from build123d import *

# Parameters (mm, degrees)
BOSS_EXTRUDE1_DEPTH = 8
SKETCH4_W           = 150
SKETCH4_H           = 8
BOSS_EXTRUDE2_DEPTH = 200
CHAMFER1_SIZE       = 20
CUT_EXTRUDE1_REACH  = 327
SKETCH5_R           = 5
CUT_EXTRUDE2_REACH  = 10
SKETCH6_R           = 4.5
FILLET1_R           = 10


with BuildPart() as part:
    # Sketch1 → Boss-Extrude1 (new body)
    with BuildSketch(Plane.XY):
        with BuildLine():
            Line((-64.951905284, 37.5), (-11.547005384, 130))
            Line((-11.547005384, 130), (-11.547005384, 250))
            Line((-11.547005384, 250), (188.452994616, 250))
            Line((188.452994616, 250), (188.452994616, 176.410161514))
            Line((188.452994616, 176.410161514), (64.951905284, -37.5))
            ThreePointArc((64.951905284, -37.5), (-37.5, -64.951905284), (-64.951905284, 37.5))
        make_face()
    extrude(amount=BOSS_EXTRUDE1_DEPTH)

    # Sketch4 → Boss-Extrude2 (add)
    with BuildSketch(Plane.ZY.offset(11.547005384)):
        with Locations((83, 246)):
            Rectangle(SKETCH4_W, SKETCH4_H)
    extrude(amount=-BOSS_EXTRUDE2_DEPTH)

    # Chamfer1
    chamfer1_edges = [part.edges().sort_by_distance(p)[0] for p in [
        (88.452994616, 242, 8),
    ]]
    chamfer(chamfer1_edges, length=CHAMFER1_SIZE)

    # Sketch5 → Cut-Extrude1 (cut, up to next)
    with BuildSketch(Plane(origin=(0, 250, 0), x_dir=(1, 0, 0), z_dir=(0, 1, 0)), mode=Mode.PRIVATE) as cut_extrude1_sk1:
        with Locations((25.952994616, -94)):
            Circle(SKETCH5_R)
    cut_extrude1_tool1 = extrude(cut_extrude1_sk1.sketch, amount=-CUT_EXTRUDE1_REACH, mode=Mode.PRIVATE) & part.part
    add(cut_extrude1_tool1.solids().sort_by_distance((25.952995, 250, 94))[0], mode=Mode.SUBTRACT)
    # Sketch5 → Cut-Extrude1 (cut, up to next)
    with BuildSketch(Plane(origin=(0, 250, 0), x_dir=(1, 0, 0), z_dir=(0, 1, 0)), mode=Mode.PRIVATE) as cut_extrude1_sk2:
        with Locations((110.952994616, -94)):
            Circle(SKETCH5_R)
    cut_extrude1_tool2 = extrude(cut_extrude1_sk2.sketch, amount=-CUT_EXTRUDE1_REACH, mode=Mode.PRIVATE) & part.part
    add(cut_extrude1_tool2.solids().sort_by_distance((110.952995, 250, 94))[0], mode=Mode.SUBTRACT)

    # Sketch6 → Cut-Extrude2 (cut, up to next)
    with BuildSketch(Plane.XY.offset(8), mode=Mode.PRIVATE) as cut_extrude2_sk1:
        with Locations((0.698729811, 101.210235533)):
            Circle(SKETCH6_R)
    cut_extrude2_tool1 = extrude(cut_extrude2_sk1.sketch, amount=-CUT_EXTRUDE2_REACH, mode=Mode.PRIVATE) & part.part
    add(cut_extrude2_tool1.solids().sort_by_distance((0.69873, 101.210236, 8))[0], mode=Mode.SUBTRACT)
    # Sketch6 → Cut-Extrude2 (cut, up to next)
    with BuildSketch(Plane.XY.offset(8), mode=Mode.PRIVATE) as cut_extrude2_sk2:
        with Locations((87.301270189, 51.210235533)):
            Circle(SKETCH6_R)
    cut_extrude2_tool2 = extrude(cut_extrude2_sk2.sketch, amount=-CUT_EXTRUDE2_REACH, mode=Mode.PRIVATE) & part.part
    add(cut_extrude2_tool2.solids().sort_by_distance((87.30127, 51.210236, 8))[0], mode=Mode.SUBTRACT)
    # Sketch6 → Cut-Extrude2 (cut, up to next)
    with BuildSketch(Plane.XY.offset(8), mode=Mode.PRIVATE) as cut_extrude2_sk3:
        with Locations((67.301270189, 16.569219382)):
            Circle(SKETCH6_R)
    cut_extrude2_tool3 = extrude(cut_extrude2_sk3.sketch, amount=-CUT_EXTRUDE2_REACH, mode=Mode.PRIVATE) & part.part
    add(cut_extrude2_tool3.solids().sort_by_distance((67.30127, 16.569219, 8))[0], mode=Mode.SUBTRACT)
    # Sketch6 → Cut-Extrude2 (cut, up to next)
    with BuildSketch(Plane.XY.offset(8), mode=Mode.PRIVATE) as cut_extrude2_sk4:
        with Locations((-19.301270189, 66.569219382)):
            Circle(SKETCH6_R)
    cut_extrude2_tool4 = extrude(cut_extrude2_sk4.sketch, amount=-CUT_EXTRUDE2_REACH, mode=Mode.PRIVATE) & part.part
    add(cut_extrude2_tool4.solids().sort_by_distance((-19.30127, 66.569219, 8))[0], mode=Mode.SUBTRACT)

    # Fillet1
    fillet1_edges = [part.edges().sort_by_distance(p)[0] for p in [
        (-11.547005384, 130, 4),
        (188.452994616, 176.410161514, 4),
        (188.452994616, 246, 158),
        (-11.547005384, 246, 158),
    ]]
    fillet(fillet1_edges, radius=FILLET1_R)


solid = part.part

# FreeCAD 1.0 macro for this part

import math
import FreeCAD as App
import Part
import Sketcher
from FreeCAD import Vector
Q = App.Units.Quantity


def edges_at(feature, points):
    """Names of the edges that pass closest to the given points."""
    edges = feature.Shape.Edges
    near = lambda p: min(range(len(edges)), key=lambda i: edges[i].distToShape(Part.Vertex(*p))[0])
    return sorted({f"Edge{near(p) + 1}" for p in points})


def add_polygon(sketch, points):
    """Adds a closed chain of lines whose ends are joined by coincident constraints."""
    first, n = sketch.GeometryCount, len(points)
    for a, b in zip(points, points[1:] + points[:1]):
        sketch.addGeometry(Part.LineSegment(App.Vector(*a, 0), App.Vector(*b, 0)), False)
    for i in range(n):
        sketch.addConstraint(Sketcher.Constraint("Coincident", first + i, 2, first + (i + 1) % n, 1))

doc = App.newDocument("Part")
body = doc.addObject("PartDesign::Body", "Body")

# Sketch on XY plane
sketch1 = doc.addObject("Sketcher::SketchObject", "Sketch")
body.addObject(sketch1)
sketch1.AttachmentSupport = (doc.XY_Plane, [""])
sketch1.MapMode = "FlatFace"
sketch1.addGeometry(Part.LineSegment(Vector(-12, 130, 0), Vector(-65, 38, 0)), False)
sketch1.addGeometry(Part.ArcOfCircle(Part.Circle(Vector(0, 0, 0), Vector(0, 0, 1), 75), math.radians(150), math.radians(330)), False)
sketch1.addGeometry(Part.LineSegment(Vector(65, -38, 0), Vector(188, 176, 0)), False)
sketch1.addGeometry(Part.LineSegment(Vector(188, 176, 0), Vector(188, 250, 0)), False)
sketch1.addGeometry(Part.LineSegment(Vector(188, 250, 0), Vector(-12, 250, 0)), False)
sketch1.addGeometry(Part.LineSegment(Vector(-12, 250, 0), Vector(-12, 130, 0)), False)
sketch1.addConstraint(Sketcher.Constraint("Tangent", 0, 2, 1, 1))
sketch1.addConstraint(Sketcher.Constraint("Tangent", 1, 2, 2, 1))
sketch1.addConstraint(Sketcher.Constraint("Coincident", 2, 2, 3, 1))
sketch1.addConstraint(Sketcher.Constraint("Coincident", 3, 2, 4, 1))
sketch1.addConstraint(Sketcher.Constraint("Coincident", 4, 2, 5, 1))
sketch1.addConstraint(Sketcher.Constraint("Coincident", 5, 2, 0, 1))
sketch1.addConstraint(Sketcher.Constraint("Vertical", 3))
sketch1.addConstraint(Sketcher.Constraint("Horizontal", 4))
sketch1.addConstraint(Sketcher.Constraint("Vertical", 5))
sketch1.addConstraint(Sketcher.Constraint("Coincident", 1, 3, -1, 1))
sketch1.addConstraint(Sketcher.Constraint("Parallel", 0, 2))
sketch1.addConstraint(Sketcher.Constraint("Radius", 1, Q("75 mm")))
sketch1.addConstraint(Sketcher.Constraint("DistanceX", 4, 2, 4, 1, Q("200 mm")))
sketch1.addConstraint(Sketcher.Constraint("DistanceY", 5, 2, 5, 1, Q("120 mm")))
sketch1.addConstraint(Sketcher.Constraint("Angle", 0, Q("-120 deg")))
sketch1.addConstraint(Sketcher.Constraint("DistanceY", -1, 1, 3, 2, Q("250 mm")))
pad1 = doc.addObject("PartDesign::Pad", "Pad")
body.addObject(pad1)
pad1.Profile = sketch1
pad1.Length = 8

# Sketch on YZ plane
sketch2 = doc.addObject("Sketcher::SketchObject", "Sketch001")
body.addObject(sketch2)
sketch2.AttachmentSupport = (doc.YZ_Plane, [""])
sketch2.MapMode = "FlatFace"
sketch2.AttachmentOffset = App.Placement(Vector(0, 0, -11.547005), App.Rotation())
add_polygon(sketch2, [(250, 8), (242, 8), (242, 158), (250, 158)])  # lines 0-3
sketch2.addConstraint(Sketcher.Constraint("Horizontal", 0))
sketch2.addConstraint(Sketcher.Constraint("Vertical", 1))
sketch2.addConstraint(Sketcher.Constraint("Horizontal", 2))
sketch2.addConstraint(Sketcher.Constraint("Vertical", 3))
sketch2.addConstraint(Sketcher.Constraint("DistanceX", 0, 2, 0, 1, Q("8 mm")))
sketch2.addConstraint(Sketcher.Constraint("DistanceY", 1, 1, 1, 2, Q("150 mm")))
sketch2.addConstraint(Sketcher.Constraint("DistanceX", -1, 1, 0, 2, Q("242 mm")))
sketch2.addConstraint(Sketcher.Constraint("DistanceY", -1, 1, 0, 2, Q("8 mm")))
pad2 = doc.addObject("PartDesign::Pad", "Pad001")
body.addObject(pad2)
pad2.Profile = sketch2
pad2.Length = 200
doc.recompute()

chamfer = doc.addObject("PartDesign::Chamfer", "Chamfer")
body.addObject(chamfer)
chamfer.Base = (pad2, edges_at(pad2, [(88.453, 242, 8)]))
chamfer.Size = 20

# Sketch on XZ plane
sketch3 = doc.addObject("Sketcher::SketchObject", "Sketch002")
body.addObject(sketch3)
sketch3.AttachmentSupport = (doc.XZ_Plane, [""])
sketch3.MapMode = "FlatFace"
sketch3.AttachmentOffset = App.Placement(Vector(0, 0, -250), App.Rotation())
sketch3.addGeometry(Part.Circle(Vector(26, 94, 0), Vector(0, 0, 1), 5), False)
sketch3.addConstraint(Sketcher.Constraint("Diameter", 0, Q("10 mm")))
sketch3.addConstraint(Sketcher.Constraint("DistanceY", -1, 1, 0, 3, Q("94 mm")))
sketch3.addConstraint(Sketcher.Constraint("DistanceX", -1, 1, 0, 3, Q("25.952995 mm")))
pocket1 = doc.addObject("PartDesign::Pocket", "Pocket")
body.addObject(pocket1)
pocket1.Profile = sketch3
pocket1.Type = "UpToFirst"
pocket1.Reversed = True

# Sketch on XZ plane
sketch4 = doc.addObject("Sketcher::SketchObject", "Sketch003")
body.addObject(sketch4)
sketch4.AttachmentSupport = (doc.XZ_Plane, [""])
sketch4.MapMode = "FlatFace"
sketch4.AttachmentOffset = App.Placement(Vector(0, 0, -250), App.Rotation())
sketch4.addGeometry(Part.Circle(Vector(111, 94, 0), Vector(0, 0, 1), 5), False)
sketch4.addConstraint(Sketcher.Constraint("Diameter", 0, Q("10 mm")))
sketch4.addConstraint(Sketcher.Constraint("DistanceY", -1, 1, 0, 3, Q("94 mm")))
sketch4.addConstraint(Sketcher.Constraint("DistanceX", -1, 1, 0, 3, Q("110.952995 mm")))
pocket2 = doc.addObject("PartDesign::Pocket", "Pocket001")
body.addObject(pocket2)
pocket2.Profile = sketch4
pocket2.Type = "UpToFirst"
pocket2.Reversed = True

# Sketch on XY plane
sketch5 = doc.addObject("Sketcher::SketchObject", "Sketch004")
body.addObject(sketch5)
sketch5.AttachmentSupport = (doc.XY_Plane, [""])
sketch5.MapMode = "FlatFace"
sketch5.AttachmentOffset = App.Placement(Vector(0, 0, 8), App.Rotation())
sketch5.addGeometry(Part.Circle(Vector(0.7, 101.2, 0), Vector(0, 0, 1), 4.5), False)
sketch5.addConstraint(Sketcher.Constraint("Diameter", 0, Q("9 mm")))
sketch5.addConstraint(Sketcher.Constraint("DistanceX", -1, 1, 0, 3, Q("0.69873 mm")))
sketch5.addConstraint(Sketcher.Constraint("DistanceY", -1, 1, 0, 3, Q("101.210236 mm")))
pocket3 = doc.addObject("PartDesign::Pocket", "Pocket002")
body.addObject(pocket3)
pocket3.Profile = sketch5
pocket3.Type = "UpToFirst"

# Sketch on XY plane
sketch6 = doc.addObject("Sketcher::SketchObject", "Sketch005")
body.addObject(sketch6)
sketch6.AttachmentSupport = (doc.XY_Plane, [""])
sketch6.MapMode = "FlatFace"
sketch6.AttachmentOffset = App.Placement(Vector(0, 0, 8), App.Rotation())
sketch6.addGeometry(Part.Circle(Vector(87.3, 51.2, 0), Vector(0, 0, 1), 4.5), False)
sketch6.addConstraint(Sketcher.Constraint("Diameter", 0, Q("9 mm")))
sketch6.addConstraint(Sketcher.Constraint("DistanceX", -1, 1, 0, 3, Q("87.30127 mm")))
sketch6.addConstraint(Sketcher.Constraint("DistanceY", -1, 1, 0, 3, Q("51.210236 mm")))
pocket4 = doc.addObject("PartDesign::Pocket", "Pocket003")
body.addObject(pocket4)
pocket4.Profile = sketch6
pocket4.Type = "UpToFirst"

# Sketch on XY plane
sketch7 = doc.addObject("Sketcher::SketchObject", "Sketch006")
body.addObject(sketch7)
sketch7.AttachmentSupport = (doc.XY_Plane, [""])
sketch7.MapMode = "FlatFace"
sketch7.AttachmentOffset = App.Placement(Vector(0, 0, 8), App.Rotation())
sketch7.addGeometry(Part.Circle(Vector(67.3, 16.6, 0), Vector(0, 0, 1), 4.5), False)
sketch7.addConstraint(Sketcher.Constraint("Diameter", 0, Q("9 mm")))
sketch7.addConstraint(Sketcher.Constraint("DistanceX", -1, 1, 0, 3, Q("67.30127 mm")))
sketch7.addConstraint(Sketcher.Constraint("DistanceY", -1, 1, 0, 3, Q("16.569219 mm")))
pocket5 = doc.addObject("PartDesign::Pocket", "Pocket004")
body.addObject(pocket5)
pocket5.Profile = sketch7
pocket5.Type = "UpToFirst"

# Sketch on XY plane
sketch8 = doc.addObject("Sketcher::SketchObject", "Sketch007")
body.addObject(sketch8)
sketch8.AttachmentSupport = (doc.XY_Plane, [""])
sketch8.MapMode = "FlatFace"
sketch8.AttachmentOffset = App.Placement(Vector(0, 0, 8), App.Rotation())
sketch8.addGeometry(Part.Circle(Vector(-19.3, 66.6, 0), Vector(0, 0, 1), 4.5), False)
sketch8.addConstraint(Sketcher.Constraint("Diameter", 0, Q("9 mm")))
sketch8.addConstraint(Sketcher.Constraint("DistanceX", 0, 3, -1, 1, Q("19.30127 mm")))
sketch8.addConstraint(Sketcher.Constraint("DistanceY", -1, 1, 0, 3, Q("66.569219 mm")))
pocket6 = doc.addObject("PartDesign::Pocket", "Pocket005")
body.addObject(pocket6)
pocket6.Profile = sketch8
pocket6.Type = "UpToFirst"
doc.recompute()

fillet = doc.addObject("PartDesign::Fillet", "Fillet")
body.addObject(fillet)
fillet.Base = (pocket6, edges_at(pocket6, [
    (-11.547, 130, 4),
    (188.453, 176.41, 4),
    (188.453, 246, 158),
    (-11.547, 246, 158),
]))
fillet.Radius = 10

doc.recompute()
